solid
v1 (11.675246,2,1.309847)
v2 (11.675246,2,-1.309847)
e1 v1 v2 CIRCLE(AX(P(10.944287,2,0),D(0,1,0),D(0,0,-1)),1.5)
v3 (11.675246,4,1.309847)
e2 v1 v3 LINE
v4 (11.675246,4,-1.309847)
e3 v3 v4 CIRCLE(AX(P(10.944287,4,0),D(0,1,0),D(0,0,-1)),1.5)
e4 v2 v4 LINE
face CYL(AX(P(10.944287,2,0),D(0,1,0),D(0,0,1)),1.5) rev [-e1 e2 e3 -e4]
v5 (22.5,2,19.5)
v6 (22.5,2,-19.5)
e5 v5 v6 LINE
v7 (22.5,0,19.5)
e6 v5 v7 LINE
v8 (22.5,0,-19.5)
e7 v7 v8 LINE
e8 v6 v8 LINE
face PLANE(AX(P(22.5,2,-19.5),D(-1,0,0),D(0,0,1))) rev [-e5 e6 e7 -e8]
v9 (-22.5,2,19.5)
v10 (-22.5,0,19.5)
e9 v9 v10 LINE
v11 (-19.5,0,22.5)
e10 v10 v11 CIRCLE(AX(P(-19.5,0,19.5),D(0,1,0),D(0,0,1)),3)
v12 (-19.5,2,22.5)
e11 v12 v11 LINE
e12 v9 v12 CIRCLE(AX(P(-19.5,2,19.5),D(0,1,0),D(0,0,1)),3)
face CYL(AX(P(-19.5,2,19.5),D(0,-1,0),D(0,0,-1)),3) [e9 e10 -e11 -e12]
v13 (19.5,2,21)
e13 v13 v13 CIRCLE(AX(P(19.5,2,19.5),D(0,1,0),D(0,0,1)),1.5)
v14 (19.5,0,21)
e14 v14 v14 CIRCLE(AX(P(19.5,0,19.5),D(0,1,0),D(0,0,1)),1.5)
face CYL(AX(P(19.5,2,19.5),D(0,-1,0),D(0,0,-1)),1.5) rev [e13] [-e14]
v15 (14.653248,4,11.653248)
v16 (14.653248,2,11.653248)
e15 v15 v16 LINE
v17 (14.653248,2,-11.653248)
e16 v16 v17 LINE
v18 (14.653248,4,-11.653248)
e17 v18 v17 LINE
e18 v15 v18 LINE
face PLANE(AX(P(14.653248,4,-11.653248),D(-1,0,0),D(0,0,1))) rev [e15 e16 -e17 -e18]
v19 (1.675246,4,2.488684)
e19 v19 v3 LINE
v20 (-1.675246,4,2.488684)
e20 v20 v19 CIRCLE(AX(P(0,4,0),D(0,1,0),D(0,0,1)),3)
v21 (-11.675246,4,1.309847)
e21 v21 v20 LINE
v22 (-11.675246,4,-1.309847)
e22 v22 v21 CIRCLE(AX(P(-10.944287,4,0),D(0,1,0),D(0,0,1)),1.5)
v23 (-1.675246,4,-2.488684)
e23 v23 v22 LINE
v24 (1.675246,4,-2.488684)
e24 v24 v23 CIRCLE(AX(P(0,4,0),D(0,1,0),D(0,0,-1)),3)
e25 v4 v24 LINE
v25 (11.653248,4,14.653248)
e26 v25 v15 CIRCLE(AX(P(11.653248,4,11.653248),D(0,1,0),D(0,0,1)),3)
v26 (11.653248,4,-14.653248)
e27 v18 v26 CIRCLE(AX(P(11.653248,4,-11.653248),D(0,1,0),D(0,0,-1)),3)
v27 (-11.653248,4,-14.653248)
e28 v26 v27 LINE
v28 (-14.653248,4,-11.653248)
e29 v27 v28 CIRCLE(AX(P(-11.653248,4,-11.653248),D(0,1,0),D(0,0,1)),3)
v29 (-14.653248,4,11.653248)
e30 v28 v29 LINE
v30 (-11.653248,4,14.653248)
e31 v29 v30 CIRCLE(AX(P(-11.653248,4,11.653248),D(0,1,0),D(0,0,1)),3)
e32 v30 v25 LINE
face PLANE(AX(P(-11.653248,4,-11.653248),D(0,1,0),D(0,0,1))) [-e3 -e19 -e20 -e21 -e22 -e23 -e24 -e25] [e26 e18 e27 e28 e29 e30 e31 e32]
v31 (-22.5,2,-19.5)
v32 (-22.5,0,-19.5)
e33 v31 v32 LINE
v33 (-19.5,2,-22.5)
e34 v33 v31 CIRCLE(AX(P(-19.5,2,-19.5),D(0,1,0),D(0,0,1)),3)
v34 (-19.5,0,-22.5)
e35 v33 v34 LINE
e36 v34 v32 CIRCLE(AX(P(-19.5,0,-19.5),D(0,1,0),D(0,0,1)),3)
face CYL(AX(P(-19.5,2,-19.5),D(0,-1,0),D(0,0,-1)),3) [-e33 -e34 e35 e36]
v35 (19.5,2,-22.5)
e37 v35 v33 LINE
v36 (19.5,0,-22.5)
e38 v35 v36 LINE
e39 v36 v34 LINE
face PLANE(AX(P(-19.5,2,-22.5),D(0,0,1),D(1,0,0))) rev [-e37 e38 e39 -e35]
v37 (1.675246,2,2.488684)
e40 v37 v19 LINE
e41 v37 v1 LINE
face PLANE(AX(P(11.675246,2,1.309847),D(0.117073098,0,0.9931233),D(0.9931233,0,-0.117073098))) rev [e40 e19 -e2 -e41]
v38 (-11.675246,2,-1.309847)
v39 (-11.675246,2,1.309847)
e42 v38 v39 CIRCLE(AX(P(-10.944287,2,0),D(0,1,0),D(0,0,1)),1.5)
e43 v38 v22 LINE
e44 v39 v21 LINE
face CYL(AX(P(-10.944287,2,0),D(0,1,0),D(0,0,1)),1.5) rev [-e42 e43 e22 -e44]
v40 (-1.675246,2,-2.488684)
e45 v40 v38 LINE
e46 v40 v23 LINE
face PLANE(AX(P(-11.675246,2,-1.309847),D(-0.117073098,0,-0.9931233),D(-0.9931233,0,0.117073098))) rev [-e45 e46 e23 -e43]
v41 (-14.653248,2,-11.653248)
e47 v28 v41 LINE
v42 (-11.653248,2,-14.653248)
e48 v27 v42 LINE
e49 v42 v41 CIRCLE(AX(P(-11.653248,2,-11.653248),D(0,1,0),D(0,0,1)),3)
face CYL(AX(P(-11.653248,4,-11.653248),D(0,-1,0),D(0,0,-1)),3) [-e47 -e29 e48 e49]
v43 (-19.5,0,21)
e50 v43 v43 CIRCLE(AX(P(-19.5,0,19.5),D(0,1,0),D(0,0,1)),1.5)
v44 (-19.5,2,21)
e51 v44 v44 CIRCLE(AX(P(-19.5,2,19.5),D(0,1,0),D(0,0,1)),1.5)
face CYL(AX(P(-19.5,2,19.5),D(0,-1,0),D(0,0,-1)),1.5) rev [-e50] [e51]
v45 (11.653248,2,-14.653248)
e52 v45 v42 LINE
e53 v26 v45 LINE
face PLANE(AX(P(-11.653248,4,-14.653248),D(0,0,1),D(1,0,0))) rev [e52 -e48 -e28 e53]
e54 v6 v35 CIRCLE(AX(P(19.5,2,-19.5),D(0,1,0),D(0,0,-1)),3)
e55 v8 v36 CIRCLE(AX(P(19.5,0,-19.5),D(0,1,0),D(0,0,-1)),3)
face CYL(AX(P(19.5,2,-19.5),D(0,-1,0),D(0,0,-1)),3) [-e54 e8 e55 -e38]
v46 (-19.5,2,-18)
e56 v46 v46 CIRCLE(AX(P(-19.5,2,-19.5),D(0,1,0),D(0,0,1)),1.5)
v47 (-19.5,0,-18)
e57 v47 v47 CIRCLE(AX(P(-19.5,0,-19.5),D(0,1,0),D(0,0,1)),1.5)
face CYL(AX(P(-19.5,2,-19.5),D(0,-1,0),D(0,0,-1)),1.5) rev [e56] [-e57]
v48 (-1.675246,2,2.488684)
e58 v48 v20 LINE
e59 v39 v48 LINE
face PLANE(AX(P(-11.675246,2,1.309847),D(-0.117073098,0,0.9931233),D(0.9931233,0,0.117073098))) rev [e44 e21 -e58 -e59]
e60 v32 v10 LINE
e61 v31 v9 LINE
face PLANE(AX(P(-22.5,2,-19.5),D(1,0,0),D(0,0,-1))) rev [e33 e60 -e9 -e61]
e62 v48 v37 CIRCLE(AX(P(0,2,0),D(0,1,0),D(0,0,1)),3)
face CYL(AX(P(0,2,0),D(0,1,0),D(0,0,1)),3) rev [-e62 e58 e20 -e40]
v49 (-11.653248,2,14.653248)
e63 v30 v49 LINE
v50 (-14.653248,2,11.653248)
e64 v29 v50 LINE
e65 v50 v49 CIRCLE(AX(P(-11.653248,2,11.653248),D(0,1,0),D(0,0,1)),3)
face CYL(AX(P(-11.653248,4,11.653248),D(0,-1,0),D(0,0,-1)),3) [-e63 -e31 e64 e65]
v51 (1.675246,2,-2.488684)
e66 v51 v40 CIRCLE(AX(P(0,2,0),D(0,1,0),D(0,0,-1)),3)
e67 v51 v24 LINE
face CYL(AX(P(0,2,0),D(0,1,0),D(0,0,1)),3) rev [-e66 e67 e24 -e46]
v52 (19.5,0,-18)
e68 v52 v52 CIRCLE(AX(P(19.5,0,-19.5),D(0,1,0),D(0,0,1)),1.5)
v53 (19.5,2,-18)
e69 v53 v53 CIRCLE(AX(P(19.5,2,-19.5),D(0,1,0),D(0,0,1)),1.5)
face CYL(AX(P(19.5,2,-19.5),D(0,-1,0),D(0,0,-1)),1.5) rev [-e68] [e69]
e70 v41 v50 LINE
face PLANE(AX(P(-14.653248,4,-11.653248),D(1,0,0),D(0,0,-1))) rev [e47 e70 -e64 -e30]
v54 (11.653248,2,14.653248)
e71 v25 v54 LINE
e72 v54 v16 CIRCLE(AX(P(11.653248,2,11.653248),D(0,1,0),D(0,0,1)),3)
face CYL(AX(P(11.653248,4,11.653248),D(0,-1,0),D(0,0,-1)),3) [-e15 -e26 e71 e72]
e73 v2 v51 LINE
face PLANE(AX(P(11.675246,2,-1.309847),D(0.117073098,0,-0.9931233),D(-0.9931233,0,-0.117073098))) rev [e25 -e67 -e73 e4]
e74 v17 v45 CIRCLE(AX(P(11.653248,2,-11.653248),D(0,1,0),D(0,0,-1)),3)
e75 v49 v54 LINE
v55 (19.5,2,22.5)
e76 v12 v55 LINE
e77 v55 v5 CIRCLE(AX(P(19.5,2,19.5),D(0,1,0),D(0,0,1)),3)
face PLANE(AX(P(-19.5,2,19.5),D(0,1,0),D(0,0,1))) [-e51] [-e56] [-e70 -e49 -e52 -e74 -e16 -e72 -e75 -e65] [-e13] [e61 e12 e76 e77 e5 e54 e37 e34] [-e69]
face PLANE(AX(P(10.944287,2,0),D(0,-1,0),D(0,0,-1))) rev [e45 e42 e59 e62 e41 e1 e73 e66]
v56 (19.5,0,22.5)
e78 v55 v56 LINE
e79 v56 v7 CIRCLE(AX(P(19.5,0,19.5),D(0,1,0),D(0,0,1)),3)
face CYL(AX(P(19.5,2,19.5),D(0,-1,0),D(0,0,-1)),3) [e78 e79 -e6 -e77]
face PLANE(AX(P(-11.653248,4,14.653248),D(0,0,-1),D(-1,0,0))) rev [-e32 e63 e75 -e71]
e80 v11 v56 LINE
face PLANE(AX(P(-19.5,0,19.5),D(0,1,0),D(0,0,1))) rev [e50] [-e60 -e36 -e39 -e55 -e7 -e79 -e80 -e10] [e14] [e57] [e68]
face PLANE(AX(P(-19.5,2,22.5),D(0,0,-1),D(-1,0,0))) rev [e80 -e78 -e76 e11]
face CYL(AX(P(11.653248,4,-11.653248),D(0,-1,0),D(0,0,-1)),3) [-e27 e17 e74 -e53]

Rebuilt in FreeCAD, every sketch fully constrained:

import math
import FreeCAD as App
import Part
import Sketcher
from FreeCAD import Vector

doc = App.newDocument("Part")
body = doc.addObject("PartDesign::Body", "Body")

sketch1 = body.newObject("Sketcher::SketchObject", "Sketch")
sketch1.AttachmentSupport = (doc.getObject("XZ_Plane"), [""])
sketch1.MapMode = "FlatFace"
sketch1.addGeometry([
    Part.LineSegment(Vector(19.5, -22.5, 0), Vector(-19.5, -22.5, 0)),
    Part.ArcOfCircle(Part.Circle(Vector(-19.5, -19.5, 0), Vector(0, 0, 1), 3), math.radians(180), math.radians(270)),
    Part.LineSegment(Vector(-22.5, -19.5, 0), Vector(-22.5, 19.5, 0)),
    Part.ArcOfCircle(Part.Circle(Vector(-19.5, 19.5, 0), Vector(0, 0, 1), 3), math.radians(90), math.radians(180)),
    Part.LineSegment(Vector(-19.5, 22.5, 0), Vector(19.5, 22.5, 0)),
    Part.ArcOfCircle(Part.Circle(Vector(19.5, 19.5, 0), Vector(0, 0, 1), 3), math.radians(0), math.radians(90)),
    Part.LineSegment(Vector(22.5, 19.5, 0), Vector(22.5, -19.5, 0)),
    Part.ArcOfCircle(Part.Circle(Vector(19.5, -19.5, 0), Vector(0, 0, 1), 3), math.radians(-90), math.radians(0)),
    Part.Circle(Vector(19.5, 19.5, 0), Vector(0, 0, 1), 1.5),
    Part.Circle(Vector(-19.5, 19.5, 0), Vector(0, 0, 1), 1.5),
    Part.Circle(Vector(19.5, -19.5, 0), Vector(0, 0, 1), 1.5),
    Part.Circle(Vector(-19.5, -19.5, 0), Vector(0, 0, 1), 1.5),
], False)
sketch1.addConstraint([
    Sketcher.Constraint("Tangent", 0, 2, 1, 2),
    Sketcher.Constraint("Tangent", 1, 1, 2, 1),
    Sketcher.Constraint("Tangent", 2, 2, 3, 2),
    Sketcher.Constraint("Tangent", 3, 1, 4, 1),
    Sketcher.Constraint("Tangent", 4, 2, 5, 2),
    Sketcher.Constraint("Tangent", 5, 1, 6, 1),
    Sketcher.Constraint("Tangent", 6, 2, 7, 2),
    Sketcher.Constraint("Tangent", 7, 1, 0, 1),
    Sketcher.Constraint("Horizontal", 0),
    Sketcher.Constraint("Vertical", 2),
    Sketcher.Constraint("Horizontal", 4),
    Sketcher.Constraint("Vertical", 6),
    Sketcher.Constraint("Coincident", 8, 3, 5, 3),
    Sketcher.Constraint("Coincident", 9, 3, 3, 3),
    Sketcher.Constraint("Coincident", 10, 3, 7, 3),
    Sketcher.Constraint("Coincident", 11, 3, 1, 3),
    Sketcher.Constraint("Equal", 1, 3),
    Sketcher.Constraint("Equal", 3, 5),
    Sketcher.Constraint("Equal", 5, 7),
    Sketcher.Constraint("Equal", 8, 9),
    Sketcher.Constraint("Equal", 9, 10),
    Sketcher.Constraint("Equal", 10, 11),
    Sketcher.Constraint("Symmetric", 1, 3, 5, 3, -1, 1),
    Sketcher.Constraint("Equal", 4, 2),
    Sketcher.Constraint("Diameter", 8, 3.0),
    Sketcher.Constraint("Radius", 1, 3.0),
    Sketcher.Constraint("DistanceX", 0, 2, 0, 1, 39.0),
])
pad1 = body.newObject("PartDesign::Pad", "Pad")
pad1.Profile = sketch1
pad1.Length = 2
pad1.Reversed = True

sketch2 = body.newObject("Sketcher::SketchObject", "Sketch001")
sketch2.AttachmentSupport = (doc.getObject("XZ_Plane"), [""])
sketch2.MapMode = "FlatFace"
sketch2.AttachmentOffset = App.Placement(Vector(0, 0, -2), App.Rotation())
sketch2.addGeometry([
    Part.LineSegment(Vector(11.7, -14.7, 0), Vector(-11.7, -14.7, 0)),
    Part.ArcOfCircle(Part.Circle(Vector(-11.7, -11.7, 0), Vector(0, 0, 1), 3), math.radians(180), math.radians(270)),
    Part.LineSegment(Vector(-14.7, -11.7, 0), Vector(-14.7, 11.7, 0)),
    Part.ArcOfCircle(Part.Circle(Vector(-11.7, 11.7, 0), Vector(0, 0, 1), 3), math.radians(90), math.radians(180)),
    Part.LineSegment(Vector(-11.7, 14.7, 0), Vector(11.7, 14.7, 0)),
    Part.ArcOfCircle(Part.Circle(Vector(11.7, 11.7, 0), Vector(0, 0, 1), 3), math.radians(0), math.radians(90)),
    Part.LineSegment(Vector(14.7, 11.7, 0), Vector(14.7, -11.7, 0)),
    Part.ArcOfCircle(Part.Circle(Vector(11.7, -11.7, 0), Vector(0, 0, 1), 3), math.radians(-90), math.radians(0)),
], False)
sketch2.addConstraint([
    Sketcher.Constraint("Tangent", 0, 2, 1, 2),
    Sketcher.Constraint("Tangent", 1, 1, 2, 1),
    Sketcher.Constraint("Tangent", 2, 2, 3, 2),
    Sketcher.Constraint("Tangent", 3, 1, 4, 1),
    Sketcher.Constraint("Tangent", 4, 2, 5, 2),
    Sketcher.Constraint("Tangent", 5, 1, 6, 1),
    Sketcher.Constraint("Tangent", 6, 2, 7, 2),
    Sketcher.Constraint("Tangent", 7, 1, 0, 1),
    Sketcher.Constraint("Horizontal", 0),
    Sketcher.Constraint("Vertical", 2),
    Sketcher.Constraint("Horizontal", 4),
    Sketcher.Constraint("Vertical", 6),
    Sketcher.Constraint("Equal", 1, 3),
    Sketcher.Constraint("Equal", 3, 5),
    Sketcher.Constraint("Equal", 5, 7),
    Sketcher.Constraint("Symmetric", 1, 3, 5, 3, -1, 1),
    Sketcher.Constraint("Equal", 4, 2),
    Sketcher.Constraint("Radius", 1, 3.0),
    Sketcher.Constraint("DistanceX", 0, 2, 0, 1, 23.306496),
])
pad2 = body.newObject("PartDesign::Pad", "Pad001")
pad2.Profile = sketch2
pad2.Length = 2
pad2.Reversed = True

sketch3 = body.newObject("Sketcher::SketchObject", "Sketch002")
sketch3.AttachmentSupport = (doc.getObject("XZ_Plane"), [""])
sketch3.MapMode = "FlatFace"
sketch3.AttachmentOffset = App.Placement(Vector(0, 0, -4), App.Rotation())
sketch3.addGeometry([
    Part.LineSegment(Vector(1.7, 2.5, 0), Vector(11.7, 1.3, 0)),
    Part.ArcOfCircle(Part.Circle(Vector(10.9, 0, 0), Vector(0, 0, 1), 1.5), math.radians(-61), math.radians(61)),
    Part.LineSegment(Vector(11.7, -1.3, 0), Vector(1.7, -2.5, 0)),
    Part.ArcOfCircle(Part.Circle(Vector(0, 0, 0), Vector(0, 0, 1), 3), math.radians(-124), math.radians(-56)),
    Part.LineSegment(Vector(-1.7, -2.5, 0), Vector(-11.7, -1.3, 0)),
    Part.ArcOfCircle(Part.Circle(Vector(-10.9, 0, 0), Vector(0, 0, 1), 1.5), math.radians(119), math.radians(241)),
    Part.LineSegment(Vector(-11.7, 1.3, 0), Vector(-1.7, 2.5, 0)),
    Part.ArcOfCircle(Part.Circle(Vector(0, 0, 0), Vector(0, 0, 1), 3), math.radians(56), math.radians(124)),
], False)
sketch3.addConstraint([
    Sketcher.Constraint("Coincident", 0, 2, 1, 2),
    Sketcher.Constraint("Coincident", 1, 1, 2, 1),
    Sketcher.Constraint("Coincident", 2, 2, 3, 2),
    Sketcher.Constraint("Coincident", 3, 1, 4, 1),
    Sketcher.Constraint("Coincident", 4, 2, 5, 2),
    Sketcher.Constraint("Coincident", 5, 1, 6, 1),
    Sketcher.Constraint("Coincident", 6, 2, 7, 2),
    Sketcher.Constraint("Coincident", 7, 1, 0, 1),
    Sketcher.Constraint("Coincident", 3, 3, -1, 1),
    Sketcher.Constraint("Coincident", 7, 3, -1, 1),
    Sketcher.Constraint("Equal", 1, 5),
    Sketcher.Constraint("Equal", 3, 7),
    Sketcher.Constraint("Symmetric", 1, 3, 5, 3, -1, 1),
    Sketcher.Constraint("Symmetric", 1, 1, 4, 2, -2),
    Sketcher.Constraint("Parallel", 0, 4),
    Sketcher.Constraint("Parallel", 2, 6),
    Sketcher.Constraint("Horizontal", 2, 2, 3, 1),
    Sketcher.Constraint("Horizontal", 0, 2, 5, 1),
    Sketcher.Constraint("Vertical", 0, 2, 1, 1),
    Sketcher.Constraint("Radius", 3, 3.0),
    Sketcher.Constraint("Radius", 1, 1.5),
    Sketcher.Constraint("DistanceX", 2, 2, 1, 1, 10.0),
    Sketcher.Constraint("DistanceX", 1, 3, 0, 2, 0.730959),
    Sketcher.Constraint("DistanceY", 2, 2, 0, 2, 3.798531),
])
pocket1 = body.newObject("PartDesign::Pocket", "Pocket")
pocket1.Profile = sketch3
pocket1.Length = 2
pocket1.Reversed = True

doc.recompute()
